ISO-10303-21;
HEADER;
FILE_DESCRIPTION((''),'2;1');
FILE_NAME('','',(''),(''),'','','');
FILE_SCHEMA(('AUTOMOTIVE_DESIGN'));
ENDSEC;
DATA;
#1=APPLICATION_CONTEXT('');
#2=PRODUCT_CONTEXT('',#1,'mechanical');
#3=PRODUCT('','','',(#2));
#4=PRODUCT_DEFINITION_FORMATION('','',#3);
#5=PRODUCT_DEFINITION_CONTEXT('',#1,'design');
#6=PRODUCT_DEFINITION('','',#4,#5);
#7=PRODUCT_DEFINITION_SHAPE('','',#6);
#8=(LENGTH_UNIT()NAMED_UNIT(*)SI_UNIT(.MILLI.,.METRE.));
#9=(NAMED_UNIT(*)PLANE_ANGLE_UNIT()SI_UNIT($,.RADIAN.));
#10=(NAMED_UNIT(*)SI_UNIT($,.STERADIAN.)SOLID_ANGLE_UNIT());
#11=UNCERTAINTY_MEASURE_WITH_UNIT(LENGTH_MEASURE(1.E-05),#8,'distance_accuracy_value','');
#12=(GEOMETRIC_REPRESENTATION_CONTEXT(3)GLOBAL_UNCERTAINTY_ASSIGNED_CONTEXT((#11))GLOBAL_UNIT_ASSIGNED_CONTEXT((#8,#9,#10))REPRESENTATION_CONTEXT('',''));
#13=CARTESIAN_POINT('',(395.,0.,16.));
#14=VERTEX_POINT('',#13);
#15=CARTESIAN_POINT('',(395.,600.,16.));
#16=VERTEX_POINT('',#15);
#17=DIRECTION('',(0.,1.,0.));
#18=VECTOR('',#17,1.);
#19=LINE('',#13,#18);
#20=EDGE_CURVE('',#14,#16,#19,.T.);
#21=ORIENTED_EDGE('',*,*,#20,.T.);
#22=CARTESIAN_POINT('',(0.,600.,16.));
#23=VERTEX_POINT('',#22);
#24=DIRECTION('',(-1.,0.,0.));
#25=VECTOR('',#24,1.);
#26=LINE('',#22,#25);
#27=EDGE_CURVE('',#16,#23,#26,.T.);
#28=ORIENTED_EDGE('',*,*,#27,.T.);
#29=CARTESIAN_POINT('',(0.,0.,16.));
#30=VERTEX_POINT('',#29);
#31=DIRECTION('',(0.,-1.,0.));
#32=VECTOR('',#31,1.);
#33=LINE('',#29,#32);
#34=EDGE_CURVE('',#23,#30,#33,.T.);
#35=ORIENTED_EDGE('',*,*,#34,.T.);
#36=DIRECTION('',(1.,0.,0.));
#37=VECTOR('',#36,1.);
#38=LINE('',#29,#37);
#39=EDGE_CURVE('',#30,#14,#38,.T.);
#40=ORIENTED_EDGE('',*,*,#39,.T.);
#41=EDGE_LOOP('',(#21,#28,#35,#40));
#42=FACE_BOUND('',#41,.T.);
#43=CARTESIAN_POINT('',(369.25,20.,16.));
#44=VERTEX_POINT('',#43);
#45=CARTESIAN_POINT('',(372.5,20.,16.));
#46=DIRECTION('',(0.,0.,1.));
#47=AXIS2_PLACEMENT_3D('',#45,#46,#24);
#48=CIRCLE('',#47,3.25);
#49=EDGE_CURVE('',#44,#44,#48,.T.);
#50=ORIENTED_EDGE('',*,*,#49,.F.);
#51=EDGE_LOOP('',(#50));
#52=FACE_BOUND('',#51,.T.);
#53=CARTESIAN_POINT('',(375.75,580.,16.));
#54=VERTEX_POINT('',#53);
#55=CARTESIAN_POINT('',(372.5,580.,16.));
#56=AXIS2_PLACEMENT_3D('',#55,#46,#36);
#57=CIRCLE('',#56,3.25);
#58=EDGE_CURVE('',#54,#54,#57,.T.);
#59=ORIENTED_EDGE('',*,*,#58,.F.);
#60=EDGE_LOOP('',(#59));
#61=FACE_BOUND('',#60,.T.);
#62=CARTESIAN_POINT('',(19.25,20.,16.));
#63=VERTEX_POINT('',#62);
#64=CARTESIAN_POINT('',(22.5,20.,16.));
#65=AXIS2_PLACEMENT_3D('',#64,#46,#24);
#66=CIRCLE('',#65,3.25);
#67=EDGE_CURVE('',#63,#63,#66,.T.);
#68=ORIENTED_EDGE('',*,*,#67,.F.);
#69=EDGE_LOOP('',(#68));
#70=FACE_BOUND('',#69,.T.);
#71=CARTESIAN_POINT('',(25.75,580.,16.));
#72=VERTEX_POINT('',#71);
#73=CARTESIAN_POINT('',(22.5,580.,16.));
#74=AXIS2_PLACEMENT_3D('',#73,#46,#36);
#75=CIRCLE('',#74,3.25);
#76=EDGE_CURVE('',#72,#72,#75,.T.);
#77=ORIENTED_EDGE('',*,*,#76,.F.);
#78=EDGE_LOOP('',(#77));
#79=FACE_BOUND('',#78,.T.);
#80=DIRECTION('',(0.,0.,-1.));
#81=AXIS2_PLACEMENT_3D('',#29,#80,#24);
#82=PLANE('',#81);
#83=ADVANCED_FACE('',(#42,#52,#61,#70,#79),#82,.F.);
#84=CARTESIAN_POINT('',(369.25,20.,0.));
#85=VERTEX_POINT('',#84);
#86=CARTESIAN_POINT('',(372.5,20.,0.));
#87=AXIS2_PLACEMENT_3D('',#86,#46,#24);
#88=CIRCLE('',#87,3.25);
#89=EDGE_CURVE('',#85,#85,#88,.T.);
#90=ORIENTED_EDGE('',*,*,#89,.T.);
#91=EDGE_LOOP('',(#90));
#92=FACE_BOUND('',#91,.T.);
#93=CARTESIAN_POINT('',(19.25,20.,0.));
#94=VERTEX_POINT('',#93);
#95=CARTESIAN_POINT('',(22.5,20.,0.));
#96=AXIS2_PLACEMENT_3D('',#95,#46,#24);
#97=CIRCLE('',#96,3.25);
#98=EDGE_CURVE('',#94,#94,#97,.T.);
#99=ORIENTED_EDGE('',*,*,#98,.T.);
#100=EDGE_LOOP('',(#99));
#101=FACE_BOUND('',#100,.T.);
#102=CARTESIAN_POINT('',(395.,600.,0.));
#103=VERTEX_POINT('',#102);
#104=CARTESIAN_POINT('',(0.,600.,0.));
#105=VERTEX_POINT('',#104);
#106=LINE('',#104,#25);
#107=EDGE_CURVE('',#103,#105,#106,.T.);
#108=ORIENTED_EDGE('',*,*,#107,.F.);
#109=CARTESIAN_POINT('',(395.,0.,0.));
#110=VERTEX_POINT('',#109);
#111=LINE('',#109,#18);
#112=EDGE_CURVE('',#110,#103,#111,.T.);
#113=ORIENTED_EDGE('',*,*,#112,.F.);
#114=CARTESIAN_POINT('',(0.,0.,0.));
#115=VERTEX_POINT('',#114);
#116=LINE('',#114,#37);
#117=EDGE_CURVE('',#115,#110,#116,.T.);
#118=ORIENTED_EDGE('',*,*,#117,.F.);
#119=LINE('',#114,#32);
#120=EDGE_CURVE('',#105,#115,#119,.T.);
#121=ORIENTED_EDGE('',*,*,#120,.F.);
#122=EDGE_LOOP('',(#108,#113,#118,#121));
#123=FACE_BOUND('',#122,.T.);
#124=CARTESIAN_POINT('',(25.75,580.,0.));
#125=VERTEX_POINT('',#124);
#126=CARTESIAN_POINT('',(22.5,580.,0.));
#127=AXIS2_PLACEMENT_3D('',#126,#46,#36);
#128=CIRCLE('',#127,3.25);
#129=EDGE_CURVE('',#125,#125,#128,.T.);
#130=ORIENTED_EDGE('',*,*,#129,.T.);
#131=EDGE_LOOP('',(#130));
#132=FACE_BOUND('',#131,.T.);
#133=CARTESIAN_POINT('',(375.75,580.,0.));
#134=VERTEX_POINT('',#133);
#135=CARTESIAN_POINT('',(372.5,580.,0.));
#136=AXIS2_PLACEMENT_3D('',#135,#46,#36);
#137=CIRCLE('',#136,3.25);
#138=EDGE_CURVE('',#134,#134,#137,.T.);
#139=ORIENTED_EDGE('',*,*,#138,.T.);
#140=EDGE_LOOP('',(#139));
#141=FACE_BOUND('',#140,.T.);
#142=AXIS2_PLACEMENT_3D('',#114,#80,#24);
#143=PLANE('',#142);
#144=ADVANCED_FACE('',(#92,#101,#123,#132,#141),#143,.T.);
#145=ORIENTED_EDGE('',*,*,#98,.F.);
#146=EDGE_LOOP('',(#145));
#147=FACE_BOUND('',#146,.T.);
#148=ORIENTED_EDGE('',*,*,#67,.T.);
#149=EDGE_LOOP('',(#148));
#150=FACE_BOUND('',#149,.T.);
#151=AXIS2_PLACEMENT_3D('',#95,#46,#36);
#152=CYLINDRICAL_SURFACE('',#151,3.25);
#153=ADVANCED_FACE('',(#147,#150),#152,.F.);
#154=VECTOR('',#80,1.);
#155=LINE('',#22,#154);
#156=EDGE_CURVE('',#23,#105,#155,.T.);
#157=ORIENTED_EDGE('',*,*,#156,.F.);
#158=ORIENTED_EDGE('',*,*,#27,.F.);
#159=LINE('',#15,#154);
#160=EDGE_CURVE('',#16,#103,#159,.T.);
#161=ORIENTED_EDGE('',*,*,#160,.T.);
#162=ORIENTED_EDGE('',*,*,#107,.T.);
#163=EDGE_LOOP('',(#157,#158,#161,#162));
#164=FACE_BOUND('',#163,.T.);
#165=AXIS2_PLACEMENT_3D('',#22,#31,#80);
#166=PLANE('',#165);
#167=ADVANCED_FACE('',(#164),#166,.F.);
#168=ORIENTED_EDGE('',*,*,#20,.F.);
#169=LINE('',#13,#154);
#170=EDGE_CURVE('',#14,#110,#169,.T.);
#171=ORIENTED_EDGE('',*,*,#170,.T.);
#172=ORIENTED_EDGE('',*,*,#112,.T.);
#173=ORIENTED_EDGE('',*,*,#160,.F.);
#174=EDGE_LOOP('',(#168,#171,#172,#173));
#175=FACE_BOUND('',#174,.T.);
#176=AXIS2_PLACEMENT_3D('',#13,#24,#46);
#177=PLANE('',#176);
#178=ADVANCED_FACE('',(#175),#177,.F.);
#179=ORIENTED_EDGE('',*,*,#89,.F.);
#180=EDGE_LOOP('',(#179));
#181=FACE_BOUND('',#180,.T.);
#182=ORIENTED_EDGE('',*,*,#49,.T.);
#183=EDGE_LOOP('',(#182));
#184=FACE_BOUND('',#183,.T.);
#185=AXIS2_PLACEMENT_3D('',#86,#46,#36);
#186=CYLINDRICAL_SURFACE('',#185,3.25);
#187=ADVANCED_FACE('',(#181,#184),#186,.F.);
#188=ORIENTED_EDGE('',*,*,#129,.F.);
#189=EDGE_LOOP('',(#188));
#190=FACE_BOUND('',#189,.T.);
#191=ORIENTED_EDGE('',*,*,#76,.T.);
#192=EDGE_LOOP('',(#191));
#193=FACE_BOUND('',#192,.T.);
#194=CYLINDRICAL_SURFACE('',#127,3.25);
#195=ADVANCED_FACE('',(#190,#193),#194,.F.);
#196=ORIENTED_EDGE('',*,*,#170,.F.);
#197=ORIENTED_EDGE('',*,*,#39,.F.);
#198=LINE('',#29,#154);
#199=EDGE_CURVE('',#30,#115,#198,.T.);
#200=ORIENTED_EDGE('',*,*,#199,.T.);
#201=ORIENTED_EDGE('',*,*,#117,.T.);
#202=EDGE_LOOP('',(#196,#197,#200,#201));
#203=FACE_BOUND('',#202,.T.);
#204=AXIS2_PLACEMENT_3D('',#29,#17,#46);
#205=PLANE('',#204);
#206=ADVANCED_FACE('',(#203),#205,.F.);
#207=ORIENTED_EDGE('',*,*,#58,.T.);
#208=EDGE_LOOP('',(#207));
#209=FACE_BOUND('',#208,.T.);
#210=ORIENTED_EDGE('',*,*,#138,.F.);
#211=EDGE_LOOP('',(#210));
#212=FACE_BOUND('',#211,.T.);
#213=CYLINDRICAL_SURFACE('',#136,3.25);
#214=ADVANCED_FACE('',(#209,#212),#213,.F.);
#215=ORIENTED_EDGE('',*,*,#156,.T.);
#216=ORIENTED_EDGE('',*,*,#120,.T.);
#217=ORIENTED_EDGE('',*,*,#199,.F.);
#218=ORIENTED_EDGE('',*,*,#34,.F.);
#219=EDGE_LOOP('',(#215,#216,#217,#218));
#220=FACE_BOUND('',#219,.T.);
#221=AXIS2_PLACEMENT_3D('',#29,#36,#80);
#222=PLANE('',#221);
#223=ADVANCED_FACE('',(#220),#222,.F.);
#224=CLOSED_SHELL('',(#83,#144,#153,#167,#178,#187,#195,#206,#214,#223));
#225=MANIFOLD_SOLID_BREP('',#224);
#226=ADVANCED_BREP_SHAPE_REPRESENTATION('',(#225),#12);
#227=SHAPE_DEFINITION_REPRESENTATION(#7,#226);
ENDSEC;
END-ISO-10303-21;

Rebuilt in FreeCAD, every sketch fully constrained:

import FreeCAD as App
import Part
import Sketcher
Q = App.Units.Quantity


def add_polygon(sketch, points):
    """Adds a closed chain of lines whose ends are joined by coincident constraints."""
    first, n = sketch.GeometryCount, len(points)
    for a, b in zip(points, points[1:] + points[:1]):
        sketch.addGeometry(Part.LineSegment(App.Vector(*a, 0), App.Vector(*b, 0)), False)
    for i in range(n):
        sketch.addConstraint(Sketcher.Constraint("Coincident", first + i, 2, first + (i + 1) % n, 1))

doc = App.newDocument("Part")
params = doc.addObject("Spreadsheet::Sheet", "Params")
for row, (alias, value) in enumerate([
    ("sketch1_width", "395 mm"),
    ("sketch1_height", "600 mm"),
    ("pad1_length", "16 mm"),
    ("sketch2_diameter", "6.5 mm"),
], start=1):
    params.set(f"A{row}", alias)
    params.set(f"B{row}", "=" + value)
    params.setAlias(f"B{row}", alias)

body = doc.addObject("PartDesign::Body", "Body")

# Sketch on XY plane
sketch1 = body.newObject("Sketcher::SketchObject", "Sketch")
sketch1.AttachmentSupport = (doc.getObject("XY_Plane"), [""])
sketch1.MapMode = "FlatFace"
add_polygon(sketch1, [(0, 600), (0, 0), (395, 0), (395, 600)])  # lines 0-3
sketch1.addConstraint([
    Sketcher.Constraint("Vertical", 0),
    Sketcher.Constraint("Horizontal", 1),
    Sketcher.Constraint("Vertical", 2),
    Sketcher.Constraint("Horizontal", 3),
    Sketcher.Constraint("Coincident", 0, 2, -1, 1),
    Sketcher.Constraint("DistanceX", 1, 1, 1, 2, Q("395 mm")),
    Sketcher.Constraint("DistanceY", 0, 2, 0, 1, Q("600 mm")),
])
sketch1.setExpression("Constraints[9]", "Params.sketch1_width")
sketch1.setExpression("Constraints[10]", "Params.sketch1_height")
pad1 = body.newObject("PartDesign::Pad", "Pad")
pad1.Profile = sketch1
pad1.setExpression("Length", "Params.pad1_length")

# Sketch on XY plane
sketch2 = body.newObject("Sketcher::SketchObject", "Sketch001")
sketch2.AttachmentSupport = (doc.getObject("XY_Plane"), [""])
sketch2.MapMode = "FlatFace"
sketch2.AttachmentOffset = App.Placement(App.Vector(0, 0, 16), App.Rotation())
sketch2.addGeometry([
    Part.Circle(App.Vector(22.5, 580, 0), App.Vector(0, 0, 1), 3.2),
    Part.Circle(App.Vector(372.5, 580, 0), App.Vector(0, 0, 1), 3.2),
    Part.Circle(App.Vector(22.5, 20, 0), App.Vector(0, 0, 1), 3.2),
    Part.Circle(App.Vector(372.5, 20, 0), App.Vector(0, 0, 1), 3.2),
], False)
sketch2.addConstraint([
    Sketcher.Constraint("Equal", 0, 1),
    Sketcher.Constraint("Equal", 1, 2),
    Sketcher.Constraint("Equal", 2, 3),
    Sketcher.Constraint("Horizontal", 0, 3, 1, 3),
    Sketcher.Constraint("Horizontal", 2, 3, 3, 3),
    Sketcher.Constraint("Vertical", 0, 3, 2, 3),
    Sketcher.Constraint("Vertical", 1, 3, 3, 3),
    Sketcher.Constraint("Diameter", 0, Q("6.5 mm")),
    Sketcher.Constraint("DistanceY", -1, 1, 0, 3, Q("580 mm")),
    Sketcher.Constraint("DistanceY", -1, 1, 2, 3, Q("20 mm")),
    Sketcher.Constraint("DistanceX", 0, 3, 1, 3, Q("350 mm")),
    Sketcher.Constraint("DistanceX", -1, 1, 0, 3, Q("22.5 mm")),
])
sketch2.setExpression("Constraints[7]", "Params.sketch2_diameter")
pocket1 = body.newObject("PartDesign::Pocket", "Pocket")
pocket1.Profile = sketch2
pocket1.Type = "ThroughAll"

doc.recompute()
